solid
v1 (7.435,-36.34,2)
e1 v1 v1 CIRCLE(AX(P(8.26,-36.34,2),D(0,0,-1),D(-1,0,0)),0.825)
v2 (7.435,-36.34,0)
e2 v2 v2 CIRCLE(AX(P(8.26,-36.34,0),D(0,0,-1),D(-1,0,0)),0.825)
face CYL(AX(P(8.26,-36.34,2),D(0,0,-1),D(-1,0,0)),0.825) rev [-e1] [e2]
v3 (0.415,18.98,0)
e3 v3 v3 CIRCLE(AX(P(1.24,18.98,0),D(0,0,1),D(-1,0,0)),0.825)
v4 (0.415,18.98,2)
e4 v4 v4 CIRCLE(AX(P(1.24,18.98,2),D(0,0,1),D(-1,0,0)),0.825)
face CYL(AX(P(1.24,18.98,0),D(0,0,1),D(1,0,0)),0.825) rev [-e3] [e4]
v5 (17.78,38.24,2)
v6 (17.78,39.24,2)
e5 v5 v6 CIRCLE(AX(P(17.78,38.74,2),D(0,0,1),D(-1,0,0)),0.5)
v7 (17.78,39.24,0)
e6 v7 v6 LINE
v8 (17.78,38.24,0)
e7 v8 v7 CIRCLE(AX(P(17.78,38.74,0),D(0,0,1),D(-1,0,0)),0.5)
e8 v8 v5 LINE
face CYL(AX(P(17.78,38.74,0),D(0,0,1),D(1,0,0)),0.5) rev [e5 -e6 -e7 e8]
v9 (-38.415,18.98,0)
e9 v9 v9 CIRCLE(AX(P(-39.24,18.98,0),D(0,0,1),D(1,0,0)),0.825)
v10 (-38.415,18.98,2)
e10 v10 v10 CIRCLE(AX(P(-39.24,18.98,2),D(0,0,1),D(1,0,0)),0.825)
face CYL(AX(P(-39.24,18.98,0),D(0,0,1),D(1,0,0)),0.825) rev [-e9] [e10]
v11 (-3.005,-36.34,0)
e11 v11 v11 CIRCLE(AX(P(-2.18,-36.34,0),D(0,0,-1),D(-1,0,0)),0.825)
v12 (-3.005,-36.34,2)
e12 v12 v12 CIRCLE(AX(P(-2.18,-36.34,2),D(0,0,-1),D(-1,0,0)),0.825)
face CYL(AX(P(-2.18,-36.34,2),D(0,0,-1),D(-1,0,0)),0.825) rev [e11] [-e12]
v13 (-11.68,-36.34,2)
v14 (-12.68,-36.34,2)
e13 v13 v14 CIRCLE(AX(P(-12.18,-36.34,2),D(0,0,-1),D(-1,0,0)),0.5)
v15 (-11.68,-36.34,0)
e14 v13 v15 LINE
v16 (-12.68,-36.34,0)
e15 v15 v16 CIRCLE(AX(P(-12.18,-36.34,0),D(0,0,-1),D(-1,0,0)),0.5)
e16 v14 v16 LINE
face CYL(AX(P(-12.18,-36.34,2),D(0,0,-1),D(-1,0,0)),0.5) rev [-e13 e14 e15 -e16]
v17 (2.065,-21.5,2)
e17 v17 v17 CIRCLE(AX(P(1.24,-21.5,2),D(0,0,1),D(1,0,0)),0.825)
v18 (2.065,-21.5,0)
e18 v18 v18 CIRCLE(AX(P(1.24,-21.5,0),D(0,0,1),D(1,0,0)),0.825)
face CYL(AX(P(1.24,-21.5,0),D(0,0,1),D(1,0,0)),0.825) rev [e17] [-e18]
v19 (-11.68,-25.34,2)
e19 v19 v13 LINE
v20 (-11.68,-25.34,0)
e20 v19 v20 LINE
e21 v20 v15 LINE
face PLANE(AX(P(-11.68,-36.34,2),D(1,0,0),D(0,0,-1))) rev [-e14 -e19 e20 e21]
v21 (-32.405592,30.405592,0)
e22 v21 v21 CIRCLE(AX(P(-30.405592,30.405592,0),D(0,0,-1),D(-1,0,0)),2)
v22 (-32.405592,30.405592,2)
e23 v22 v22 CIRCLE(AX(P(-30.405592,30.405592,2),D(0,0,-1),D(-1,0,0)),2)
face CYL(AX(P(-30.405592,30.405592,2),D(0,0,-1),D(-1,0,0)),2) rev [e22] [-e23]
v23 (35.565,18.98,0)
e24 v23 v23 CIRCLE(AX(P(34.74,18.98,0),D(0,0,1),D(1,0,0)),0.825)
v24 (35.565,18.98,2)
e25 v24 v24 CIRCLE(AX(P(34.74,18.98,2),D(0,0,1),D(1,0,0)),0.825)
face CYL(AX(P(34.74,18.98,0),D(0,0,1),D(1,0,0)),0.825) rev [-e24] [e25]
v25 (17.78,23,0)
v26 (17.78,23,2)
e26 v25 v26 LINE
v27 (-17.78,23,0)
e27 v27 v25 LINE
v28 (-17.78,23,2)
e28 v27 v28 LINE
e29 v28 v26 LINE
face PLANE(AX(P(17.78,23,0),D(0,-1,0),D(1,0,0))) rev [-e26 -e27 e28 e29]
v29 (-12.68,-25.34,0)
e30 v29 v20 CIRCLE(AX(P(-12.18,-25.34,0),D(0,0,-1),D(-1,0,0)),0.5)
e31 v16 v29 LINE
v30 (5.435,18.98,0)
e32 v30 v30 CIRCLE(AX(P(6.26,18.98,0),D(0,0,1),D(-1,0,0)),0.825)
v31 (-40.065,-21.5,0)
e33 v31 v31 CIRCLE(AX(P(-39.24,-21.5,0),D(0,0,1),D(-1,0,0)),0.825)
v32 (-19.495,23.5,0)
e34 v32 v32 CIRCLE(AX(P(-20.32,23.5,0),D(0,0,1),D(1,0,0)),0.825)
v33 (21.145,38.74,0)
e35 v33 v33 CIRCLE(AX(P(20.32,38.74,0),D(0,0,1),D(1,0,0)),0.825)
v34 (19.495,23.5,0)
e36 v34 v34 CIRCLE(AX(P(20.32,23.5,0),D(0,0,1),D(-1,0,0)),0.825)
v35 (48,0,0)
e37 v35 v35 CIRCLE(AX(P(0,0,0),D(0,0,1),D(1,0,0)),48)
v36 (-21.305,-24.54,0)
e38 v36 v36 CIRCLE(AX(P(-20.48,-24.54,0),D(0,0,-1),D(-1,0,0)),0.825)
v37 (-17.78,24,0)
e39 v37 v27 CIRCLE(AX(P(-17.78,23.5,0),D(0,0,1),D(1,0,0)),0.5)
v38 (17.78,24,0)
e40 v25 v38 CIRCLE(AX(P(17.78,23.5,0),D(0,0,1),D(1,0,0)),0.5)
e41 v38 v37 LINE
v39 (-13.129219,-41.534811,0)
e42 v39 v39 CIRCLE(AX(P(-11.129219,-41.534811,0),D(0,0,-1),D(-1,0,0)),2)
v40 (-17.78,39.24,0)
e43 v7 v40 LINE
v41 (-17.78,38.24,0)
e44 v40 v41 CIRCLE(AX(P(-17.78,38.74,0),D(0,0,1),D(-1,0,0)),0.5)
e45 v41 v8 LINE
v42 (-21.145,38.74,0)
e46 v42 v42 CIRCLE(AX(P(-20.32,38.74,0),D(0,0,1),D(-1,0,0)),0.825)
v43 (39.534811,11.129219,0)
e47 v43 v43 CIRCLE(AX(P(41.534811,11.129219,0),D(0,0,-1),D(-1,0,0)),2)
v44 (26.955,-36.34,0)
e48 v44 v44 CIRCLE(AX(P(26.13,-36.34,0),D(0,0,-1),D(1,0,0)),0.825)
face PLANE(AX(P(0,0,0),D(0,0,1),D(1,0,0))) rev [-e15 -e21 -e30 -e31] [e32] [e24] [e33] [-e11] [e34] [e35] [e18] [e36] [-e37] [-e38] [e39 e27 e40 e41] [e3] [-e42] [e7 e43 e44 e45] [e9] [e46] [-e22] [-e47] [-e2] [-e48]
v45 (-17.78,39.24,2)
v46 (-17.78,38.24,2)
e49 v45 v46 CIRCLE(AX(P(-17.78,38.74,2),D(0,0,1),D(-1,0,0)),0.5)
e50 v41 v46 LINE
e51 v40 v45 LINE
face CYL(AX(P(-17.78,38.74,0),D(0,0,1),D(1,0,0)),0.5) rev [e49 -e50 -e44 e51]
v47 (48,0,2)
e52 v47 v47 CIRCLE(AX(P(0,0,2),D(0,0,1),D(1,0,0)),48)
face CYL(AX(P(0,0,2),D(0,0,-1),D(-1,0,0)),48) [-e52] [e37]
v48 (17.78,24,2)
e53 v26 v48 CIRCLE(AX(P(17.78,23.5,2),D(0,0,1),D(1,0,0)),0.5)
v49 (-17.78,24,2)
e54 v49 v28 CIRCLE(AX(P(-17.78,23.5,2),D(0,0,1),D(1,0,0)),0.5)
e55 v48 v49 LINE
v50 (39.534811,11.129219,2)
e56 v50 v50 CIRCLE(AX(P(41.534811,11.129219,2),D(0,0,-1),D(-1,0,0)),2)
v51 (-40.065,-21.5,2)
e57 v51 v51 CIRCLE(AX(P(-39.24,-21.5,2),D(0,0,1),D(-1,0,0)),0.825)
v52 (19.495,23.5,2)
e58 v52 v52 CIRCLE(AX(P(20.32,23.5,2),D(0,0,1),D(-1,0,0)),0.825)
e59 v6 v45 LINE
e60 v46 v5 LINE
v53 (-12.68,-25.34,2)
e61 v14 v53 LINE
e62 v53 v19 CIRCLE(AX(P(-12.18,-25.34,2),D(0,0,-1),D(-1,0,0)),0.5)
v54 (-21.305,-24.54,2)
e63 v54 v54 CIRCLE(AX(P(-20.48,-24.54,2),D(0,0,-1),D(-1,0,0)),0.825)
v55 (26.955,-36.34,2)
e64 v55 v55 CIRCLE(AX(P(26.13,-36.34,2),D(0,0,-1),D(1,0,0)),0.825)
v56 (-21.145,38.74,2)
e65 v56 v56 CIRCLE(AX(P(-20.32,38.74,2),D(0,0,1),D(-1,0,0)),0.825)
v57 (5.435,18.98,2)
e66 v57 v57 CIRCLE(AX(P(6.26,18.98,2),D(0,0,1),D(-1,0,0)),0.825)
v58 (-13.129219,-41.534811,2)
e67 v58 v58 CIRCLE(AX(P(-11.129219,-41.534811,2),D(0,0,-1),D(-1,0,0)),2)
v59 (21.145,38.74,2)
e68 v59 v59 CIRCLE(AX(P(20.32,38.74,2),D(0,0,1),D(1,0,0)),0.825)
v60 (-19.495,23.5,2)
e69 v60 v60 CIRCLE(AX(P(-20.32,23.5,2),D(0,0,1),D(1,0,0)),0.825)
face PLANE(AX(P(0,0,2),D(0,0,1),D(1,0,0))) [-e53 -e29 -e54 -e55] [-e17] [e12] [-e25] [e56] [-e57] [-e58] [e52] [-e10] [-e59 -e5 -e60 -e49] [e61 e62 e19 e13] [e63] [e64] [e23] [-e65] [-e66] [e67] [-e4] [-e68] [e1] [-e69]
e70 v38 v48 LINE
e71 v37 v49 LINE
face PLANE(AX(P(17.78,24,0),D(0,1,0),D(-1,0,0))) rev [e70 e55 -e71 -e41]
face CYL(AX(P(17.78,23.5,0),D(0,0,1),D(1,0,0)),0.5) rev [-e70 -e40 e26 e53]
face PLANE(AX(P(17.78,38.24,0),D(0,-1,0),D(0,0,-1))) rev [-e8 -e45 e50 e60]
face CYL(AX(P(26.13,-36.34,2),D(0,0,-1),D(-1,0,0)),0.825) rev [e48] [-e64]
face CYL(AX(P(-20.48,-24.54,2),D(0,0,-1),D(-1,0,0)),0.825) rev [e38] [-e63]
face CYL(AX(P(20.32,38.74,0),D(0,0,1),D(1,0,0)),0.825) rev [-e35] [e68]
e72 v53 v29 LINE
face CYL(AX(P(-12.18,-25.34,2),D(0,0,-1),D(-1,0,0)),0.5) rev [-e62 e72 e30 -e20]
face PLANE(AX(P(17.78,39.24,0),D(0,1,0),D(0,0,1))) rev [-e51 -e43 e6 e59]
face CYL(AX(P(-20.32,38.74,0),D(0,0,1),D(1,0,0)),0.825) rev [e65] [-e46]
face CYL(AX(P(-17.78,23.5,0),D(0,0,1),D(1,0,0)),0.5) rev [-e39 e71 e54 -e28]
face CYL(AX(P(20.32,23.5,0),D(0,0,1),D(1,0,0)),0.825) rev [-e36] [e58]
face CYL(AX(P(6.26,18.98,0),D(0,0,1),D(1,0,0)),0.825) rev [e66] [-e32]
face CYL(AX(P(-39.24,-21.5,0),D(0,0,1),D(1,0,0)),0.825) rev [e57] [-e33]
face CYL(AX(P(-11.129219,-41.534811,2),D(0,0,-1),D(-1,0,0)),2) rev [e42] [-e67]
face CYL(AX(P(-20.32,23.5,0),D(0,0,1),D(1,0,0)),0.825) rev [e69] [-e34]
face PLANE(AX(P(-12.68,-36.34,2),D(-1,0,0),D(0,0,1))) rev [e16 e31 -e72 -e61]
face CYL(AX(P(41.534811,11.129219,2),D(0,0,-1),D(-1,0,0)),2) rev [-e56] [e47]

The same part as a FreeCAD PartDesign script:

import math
import FreeCAD as App
import Part
import Sketcher
Q = App.Units.Quantity

doc = App.newDocument("Part")
body = doc.addObject("PartDesign::Body", "Body")

# Sketch on XY plane
sketch1 = body.newObject("Sketcher::SketchObject", "Sketch")
sketch1.AttachmentSupport = (doc.getObject("XY_Plane"), [""])
sketch1.MapMode = "FlatFace"
sketch1.addGeometry(Part.Circle(App.Vector(0, 0, 0), App.Vector(0, 0, 1), 48), False)
sketch1.addConstraint([
    Sketcher.Constraint("Coincident", 0, 3, -1, 1),
    Sketcher.Constraint("Diameter", 0, Q("96 mm")),
])
pad1 = body.newObject("PartDesign::Pad", "Pad")
pad1.Profile = sketch1
pad1.Length = 2

# Sketch on XY plane
sketch2 = body.newObject("Sketcher::SketchObject", "Sketch001")
sketch2.AttachmentSupport = (doc.getObject("XY_Plane"), [""])
sketch2.MapMode = "FlatFace"
sketch2.addGeometry([
    Part.Circle(App.Vector(-30.4, 30.4, 0), App.Vector(0, 0, 1), 2),
    Part.Circle(App.Vector(-11.1, -41.5, 0), App.Vector(0, 0, 1), 2),
    Part.Circle(App.Vector(41.5, 11.1, 0), App.Vector(0, 0, 1), 2),
], False)
sketch2.addConstraint([
    Sketcher.Constraint("Equal", 0, 1),
    Sketcher.Constraint("Equal", 1, 2),
    Sketcher.Constraint("Diameter", 0, Q("4 mm")),
    Sketcher.Constraint("DistanceX", 0, 3, -1, 1, Q("30.405592 mm")),
    Sketcher.Constraint("DistanceY", -1, 1, 0, 3, Q("30.405592 mm")),
    Sketcher.Constraint("DistanceX", 1, 3, -1, 1, Q("11.129219 mm")),
    Sketcher.Constraint("DistanceY", 1, 3, -1, 1, Q("41.534811 mm")),
    Sketcher.Constraint("DistanceX", -1, 1, 2, 3, Q("41.534811 mm")),
    Sketcher.Constraint("DistanceY", -1, 1, 2, 3, Q("11.129219 mm")),
])
pocket1 = body.newObject("PartDesign::Pocket", "Pocket")
pocket1.Profile = sketch2
pocket1.Type = "ThroughAll"
pocket1.Reversed = True

# Sketch on XY plane
sketch3 = body.newObject("Sketcher::SketchObject", "Sketch002")
sketch3.AttachmentSupport = (doc.getObject("XY_Plane"), [""])
sketch3.MapMode = "FlatFace"
sketch3.AttachmentOffset = App.Placement(App.Vector(0, 0, 2), App.Rotation())
sketch3.addGeometry([
    Part.Circle(App.Vector(20.3, 38.7, 0), App.Vector(0, 0, 1), 0.8),  # 0
    Part.Circle(App.Vector(20.3, 23.5, 0), App.Vector(0, 0, 1), 0.8),  # 1
    Part.Circle(App.Vector(-20.3, 23.5, 0), App.Vector(0, 0, 1), 0.8),  # 2
    Part.Circle(App.Vector(-20.3, 38.7, 0), App.Vector(0, 0, 1), 0.8),  # 3
    Part.Circle(App.Vector(34.7, 19, 0), App.Vector(0, 0, 1), 0.8),  # 4
    Part.Circle(App.Vector(6.3, 19, 0), App.Vector(0, 0, 1), 0.8),  # 5
    Part.Circle(App.Vector(-39.2, 19, 0), App.Vector(0, 0, 1), 0.8),  # 6
    Part.Circle(App.Vector(1.2, 19, 0), App.Vector(0, 0, 1), 0.8),  # 7
    Part.Circle(App.Vector(1.2, -21.5, 0), App.Vector(0, 0, 1), 0.8),  # 8
    Part.Circle(App.Vector(-39.2, -21.5, 0), App.Vector(0, 0, 1), 0.8),  # 9
    Part.LineSegment(App.Vector(-17.8, 23, 0), App.Vector(17.8, 23, 0)),  # 10
    Part.ArcOfCircle(Part.Circle(App.Vector(17.8, 23.5, 0), App.Vector(0, 0, 1), 0.5), math.radians(-90), math.radians(90)),  # 11
    Part.LineSegment(App.Vector(17.8, 24, 0), App.Vector(-17.8, 24, 0)),  # 12
    Part.ArcOfCircle(Part.Circle(App.Vector(-17.8, 23.5, 0), App.Vector(0, 0, 1), 0.5), math.radians(90), math.radians(270)),  # 13
    Part.LineSegment(App.Vector(17.8, 39.2, 0), App.Vector(-17.8, 39.2, 0)),  # 14
    Part.ArcOfCircle(Part.Circle(App.Vector(-17.8, 38.7, 0), App.Vector(0, 0, 1), 0.5), math.radians(90), math.radians(270)),  # 15
    Part.LineSegment(App.Vector(-17.8, 38.2, 0), App.Vector(17.8, 38.2, 0)),  # 16
    Part.ArcOfCircle(Part.Circle(App.Vector(17.8, 38.7, 0), App.Vector(0, 0, 1), 0.5), math.radians(-90), math.radians(90)),  # 17
], False)
sketch3.addConstraint([
    Sketcher.Constraint("Tangent", 10, 2, 11, 1),
    Sketcher.Constraint("Tangent", 11, 2, 12, 1),
    Sketcher.Constraint("Tangent", 12, 2, 13, 1),
    Sketcher.Constraint("Tangent", 13, 2, 10, 1),
    Sketcher.Constraint("Tangent", 14, 2, 15, 1),
    Sketcher.Constraint("Tangent", 15, 2, 16, 1),
    Sketcher.Constraint("Tangent", 16, 2, 17, 1),
    Sketcher.Constraint("Tangent", 17, 2, 14, 1),
    Sketcher.Constraint("Horizontal", 10),
    Sketcher.Constraint("Horizontal", 12),
    Sketcher.Constraint("Horizontal", 14),
    Sketcher.Constraint("Horizontal", 16),
    Sketcher.Constraint("Equal", 0, 1),
    Sketcher.Constraint("Equal", 1, 2),
    Sketcher.Constraint("Equal", 2, 3),
    Sketcher.Constraint("Equal", 3, 4),
    Sketcher.Constraint("Equal", 4, 5),
    Sketcher.Constraint("Equal", 5, 6),
    Sketcher.Constraint("Equal", 6, 7),
    Sketcher.Constraint("Equal", 7, 8),
    Sketcher.Constraint("Equal", 8, 9),
    Sketcher.Constraint("Equal", 13, 15),
    Sketcher.Constraint("Symmetric", 1, 3, 2, 3, -2),
    Sketcher.Constraint("Symmetric", 0, 3, 3, 3, -2),
    Sketcher.Constraint("Horizontal", 4, 3, 5, 3),
    Sketcher.Constraint("Horizontal", 5, 3, 6, 3),
    Sketcher.Constraint("Horizontal", 6, 3, 7, 3),
    Sketcher.Constraint("Horizontal", 8, 3, 9, 3),
    Sketcher.Constraint("Horizontal", 2, 3, 11, 3),
    Sketcher.Constraint("Horizontal", 3, 3, 15, 3),
    Sketcher.Constraint("Vertical", 0, 3, 1, 3),
    Sketcher.Constraint("Vertical", 7, 3, 8, 3),
    Sketcher.Constraint("Vertical", 6, 3, 9, 3),
    Sketcher.Constraint("Vertical", 13, 3, 15, 3),
    Sketcher.Constraint("Vertical", 11, 3, 17, 3),
    Sketcher.Constraint("Radius", 11, Q("0.5 mm")),
    Sketcher.Constraint("Diameter", 0, Q("1.65 mm")),
    Sketcher.Constraint("DistanceY", -1, 1, 10, 2, Q("23 mm")),
    Sketcher.Constraint("DistanceY", 8, 3, 1, 3, Q("45 mm")),
    Sketcher.Constraint("DistanceX", 10, 1, 10, 2, Q("35.56 mm")),
    Sketcher.Constraint("DistanceX", 6, 3, 5, 3, Q("45.5 mm")),
    Sketcher.Constraint("DistanceX", 8, 3, 4, 3, Q("33.5 mm")),
    Sketcher.Constraint("DistanceX", -1, 1, 0, 3, Q("20.32 mm")),
    Sketcher.Constraint("DistanceY", -1, 1, 0, 3, Q("38.74 mm")),
    Sketcher.Constraint("DistanceX", -1, 1, 4, 3, Q("34.74 mm")),
    Sketcher.Constraint("DistanceY", -1, 1, 4, 3, Q("18.98 mm")),
    Sketcher.Constraint("DistanceX", -1, 1, 5, 3, Q("6.26 mm")),
    Sketcher.Constraint("DistanceX", -1, 1, 11, 3, Q("17.78 mm")),
])
pocket2 = body.newObject("PartDesign::Pocket", "Pocket001")
pocket2.Profile = sketch3
pocket2.Type = "ThroughAll"

# Sketch on XY plane
sketch4 = body.newObject("Sketcher::SketchObject", "Sketch003")
sketch4.AttachmentSupport = (doc.getObject("XY_Plane"), [""])
sketch4.MapMode = "FlatFace"
sketch4.addGeometry([
    Part.Circle(App.Vector(8.3, -36.3, 0), App.Vector(0, 0, 1), 0.8),  # 0
    Part.Circle(App.Vector(-2.2, -36.3, 0), App.Vector(0, 0, 1), 0.8),  # 1
    Part.Circle(App.Vector(26.1, -36.3, 0), App.Vector(0, 0, 1), 0.8),  # 2
    Part.Circle(App.Vector(-20.5, -24.5, 0), App.Vector(0, 0, 1), 0.8),  # 3
    Part.LineSegment(App.Vector(-11.7, -25.3, 0), App.Vector(-11.7, -36.3, 0)),  # 4
    Part.ArcOfCircle(Part.Circle(App.Vector(-12.2, -36.3, 0), App.Vector(0, 0, 1), 0.5), math.radians(180), math.radians(360)),  # 5
    Part.LineSegment(App.Vector(-12.7, -36.3, 0), App.Vector(-12.7, -25.3, 0)),  # 6
    Part.ArcOfCircle(Part.Circle(App.Vector(-12.2, -25.3, 0), App.Vector(0, 0, 1), 0.5), math.radians(0), math.radians(180)),  # 7
], False)
sketch4.addConstraint([
    Sketcher.Constraint("Tangent", 4, 2, 5, 2),
    Sketcher.Constraint("Tangent", 5, 1, 6, 1),
    Sketcher.Constraint("Tangent", 6, 2, 7, 2),
    Sketcher.Constraint("Tangent", 7, 1, 4, 1),
    Sketcher.Constraint("Vertical", 4),
    Sketcher.Constraint("Vertical", 6),
    Sketcher.Constraint("Equal", 0, 1),
    Sketcher.Constraint("Equal", 1, 2),
    Sketcher.Constraint("Equal", 2, 3),
    Sketcher.Constraint("Horizontal", 0, 3, 1, 3),
    Sketcher.Constraint("Horizontal", 1, 3, 2, 3),
    Sketcher.Constraint("Horizontal", 2, 3, 5, 3),
    Sketcher.Constraint("Radius", 5, Q("0.5 mm")),
    Sketcher.Constraint("Diameter", 0, Q("1.65 mm")),
    Sketcher.Constraint("DistanceY", 4, 2, 4, 1, Q("11 mm")),
    Sketcher.Constraint("DistanceX", 5, 3, 1, 3, Q("10 mm")),
    Sketcher.Constraint("DistanceX", 3, 3, 1, 3, Q("18.3 mm")),
    Sketcher.Constraint("DistanceY", 1, 3, 3, 3, Q("11.8 mm")),
    Sketcher.Constraint("DistanceX", -1, 1, 0, 3, Q("8.26 mm")),
    Sketcher.Constraint("DistanceY", 0, 3, -1, 1, Q("36.34 mm")),
    Sketcher.Constraint("DistanceX", 1, 3, -1, 1, Q("2.18 mm")),
    Sketcher.Constraint("DistanceX", -1, 1, 2, 3, Q("26.13 mm")),
])
pocket3 = body.newObject("PartDesign::Pocket", "Pocket002")
pocket3.Profile = sketch4
pocket3.Type = "ThroughAll"
pocket3.Reversed = True

doc.recompute()
